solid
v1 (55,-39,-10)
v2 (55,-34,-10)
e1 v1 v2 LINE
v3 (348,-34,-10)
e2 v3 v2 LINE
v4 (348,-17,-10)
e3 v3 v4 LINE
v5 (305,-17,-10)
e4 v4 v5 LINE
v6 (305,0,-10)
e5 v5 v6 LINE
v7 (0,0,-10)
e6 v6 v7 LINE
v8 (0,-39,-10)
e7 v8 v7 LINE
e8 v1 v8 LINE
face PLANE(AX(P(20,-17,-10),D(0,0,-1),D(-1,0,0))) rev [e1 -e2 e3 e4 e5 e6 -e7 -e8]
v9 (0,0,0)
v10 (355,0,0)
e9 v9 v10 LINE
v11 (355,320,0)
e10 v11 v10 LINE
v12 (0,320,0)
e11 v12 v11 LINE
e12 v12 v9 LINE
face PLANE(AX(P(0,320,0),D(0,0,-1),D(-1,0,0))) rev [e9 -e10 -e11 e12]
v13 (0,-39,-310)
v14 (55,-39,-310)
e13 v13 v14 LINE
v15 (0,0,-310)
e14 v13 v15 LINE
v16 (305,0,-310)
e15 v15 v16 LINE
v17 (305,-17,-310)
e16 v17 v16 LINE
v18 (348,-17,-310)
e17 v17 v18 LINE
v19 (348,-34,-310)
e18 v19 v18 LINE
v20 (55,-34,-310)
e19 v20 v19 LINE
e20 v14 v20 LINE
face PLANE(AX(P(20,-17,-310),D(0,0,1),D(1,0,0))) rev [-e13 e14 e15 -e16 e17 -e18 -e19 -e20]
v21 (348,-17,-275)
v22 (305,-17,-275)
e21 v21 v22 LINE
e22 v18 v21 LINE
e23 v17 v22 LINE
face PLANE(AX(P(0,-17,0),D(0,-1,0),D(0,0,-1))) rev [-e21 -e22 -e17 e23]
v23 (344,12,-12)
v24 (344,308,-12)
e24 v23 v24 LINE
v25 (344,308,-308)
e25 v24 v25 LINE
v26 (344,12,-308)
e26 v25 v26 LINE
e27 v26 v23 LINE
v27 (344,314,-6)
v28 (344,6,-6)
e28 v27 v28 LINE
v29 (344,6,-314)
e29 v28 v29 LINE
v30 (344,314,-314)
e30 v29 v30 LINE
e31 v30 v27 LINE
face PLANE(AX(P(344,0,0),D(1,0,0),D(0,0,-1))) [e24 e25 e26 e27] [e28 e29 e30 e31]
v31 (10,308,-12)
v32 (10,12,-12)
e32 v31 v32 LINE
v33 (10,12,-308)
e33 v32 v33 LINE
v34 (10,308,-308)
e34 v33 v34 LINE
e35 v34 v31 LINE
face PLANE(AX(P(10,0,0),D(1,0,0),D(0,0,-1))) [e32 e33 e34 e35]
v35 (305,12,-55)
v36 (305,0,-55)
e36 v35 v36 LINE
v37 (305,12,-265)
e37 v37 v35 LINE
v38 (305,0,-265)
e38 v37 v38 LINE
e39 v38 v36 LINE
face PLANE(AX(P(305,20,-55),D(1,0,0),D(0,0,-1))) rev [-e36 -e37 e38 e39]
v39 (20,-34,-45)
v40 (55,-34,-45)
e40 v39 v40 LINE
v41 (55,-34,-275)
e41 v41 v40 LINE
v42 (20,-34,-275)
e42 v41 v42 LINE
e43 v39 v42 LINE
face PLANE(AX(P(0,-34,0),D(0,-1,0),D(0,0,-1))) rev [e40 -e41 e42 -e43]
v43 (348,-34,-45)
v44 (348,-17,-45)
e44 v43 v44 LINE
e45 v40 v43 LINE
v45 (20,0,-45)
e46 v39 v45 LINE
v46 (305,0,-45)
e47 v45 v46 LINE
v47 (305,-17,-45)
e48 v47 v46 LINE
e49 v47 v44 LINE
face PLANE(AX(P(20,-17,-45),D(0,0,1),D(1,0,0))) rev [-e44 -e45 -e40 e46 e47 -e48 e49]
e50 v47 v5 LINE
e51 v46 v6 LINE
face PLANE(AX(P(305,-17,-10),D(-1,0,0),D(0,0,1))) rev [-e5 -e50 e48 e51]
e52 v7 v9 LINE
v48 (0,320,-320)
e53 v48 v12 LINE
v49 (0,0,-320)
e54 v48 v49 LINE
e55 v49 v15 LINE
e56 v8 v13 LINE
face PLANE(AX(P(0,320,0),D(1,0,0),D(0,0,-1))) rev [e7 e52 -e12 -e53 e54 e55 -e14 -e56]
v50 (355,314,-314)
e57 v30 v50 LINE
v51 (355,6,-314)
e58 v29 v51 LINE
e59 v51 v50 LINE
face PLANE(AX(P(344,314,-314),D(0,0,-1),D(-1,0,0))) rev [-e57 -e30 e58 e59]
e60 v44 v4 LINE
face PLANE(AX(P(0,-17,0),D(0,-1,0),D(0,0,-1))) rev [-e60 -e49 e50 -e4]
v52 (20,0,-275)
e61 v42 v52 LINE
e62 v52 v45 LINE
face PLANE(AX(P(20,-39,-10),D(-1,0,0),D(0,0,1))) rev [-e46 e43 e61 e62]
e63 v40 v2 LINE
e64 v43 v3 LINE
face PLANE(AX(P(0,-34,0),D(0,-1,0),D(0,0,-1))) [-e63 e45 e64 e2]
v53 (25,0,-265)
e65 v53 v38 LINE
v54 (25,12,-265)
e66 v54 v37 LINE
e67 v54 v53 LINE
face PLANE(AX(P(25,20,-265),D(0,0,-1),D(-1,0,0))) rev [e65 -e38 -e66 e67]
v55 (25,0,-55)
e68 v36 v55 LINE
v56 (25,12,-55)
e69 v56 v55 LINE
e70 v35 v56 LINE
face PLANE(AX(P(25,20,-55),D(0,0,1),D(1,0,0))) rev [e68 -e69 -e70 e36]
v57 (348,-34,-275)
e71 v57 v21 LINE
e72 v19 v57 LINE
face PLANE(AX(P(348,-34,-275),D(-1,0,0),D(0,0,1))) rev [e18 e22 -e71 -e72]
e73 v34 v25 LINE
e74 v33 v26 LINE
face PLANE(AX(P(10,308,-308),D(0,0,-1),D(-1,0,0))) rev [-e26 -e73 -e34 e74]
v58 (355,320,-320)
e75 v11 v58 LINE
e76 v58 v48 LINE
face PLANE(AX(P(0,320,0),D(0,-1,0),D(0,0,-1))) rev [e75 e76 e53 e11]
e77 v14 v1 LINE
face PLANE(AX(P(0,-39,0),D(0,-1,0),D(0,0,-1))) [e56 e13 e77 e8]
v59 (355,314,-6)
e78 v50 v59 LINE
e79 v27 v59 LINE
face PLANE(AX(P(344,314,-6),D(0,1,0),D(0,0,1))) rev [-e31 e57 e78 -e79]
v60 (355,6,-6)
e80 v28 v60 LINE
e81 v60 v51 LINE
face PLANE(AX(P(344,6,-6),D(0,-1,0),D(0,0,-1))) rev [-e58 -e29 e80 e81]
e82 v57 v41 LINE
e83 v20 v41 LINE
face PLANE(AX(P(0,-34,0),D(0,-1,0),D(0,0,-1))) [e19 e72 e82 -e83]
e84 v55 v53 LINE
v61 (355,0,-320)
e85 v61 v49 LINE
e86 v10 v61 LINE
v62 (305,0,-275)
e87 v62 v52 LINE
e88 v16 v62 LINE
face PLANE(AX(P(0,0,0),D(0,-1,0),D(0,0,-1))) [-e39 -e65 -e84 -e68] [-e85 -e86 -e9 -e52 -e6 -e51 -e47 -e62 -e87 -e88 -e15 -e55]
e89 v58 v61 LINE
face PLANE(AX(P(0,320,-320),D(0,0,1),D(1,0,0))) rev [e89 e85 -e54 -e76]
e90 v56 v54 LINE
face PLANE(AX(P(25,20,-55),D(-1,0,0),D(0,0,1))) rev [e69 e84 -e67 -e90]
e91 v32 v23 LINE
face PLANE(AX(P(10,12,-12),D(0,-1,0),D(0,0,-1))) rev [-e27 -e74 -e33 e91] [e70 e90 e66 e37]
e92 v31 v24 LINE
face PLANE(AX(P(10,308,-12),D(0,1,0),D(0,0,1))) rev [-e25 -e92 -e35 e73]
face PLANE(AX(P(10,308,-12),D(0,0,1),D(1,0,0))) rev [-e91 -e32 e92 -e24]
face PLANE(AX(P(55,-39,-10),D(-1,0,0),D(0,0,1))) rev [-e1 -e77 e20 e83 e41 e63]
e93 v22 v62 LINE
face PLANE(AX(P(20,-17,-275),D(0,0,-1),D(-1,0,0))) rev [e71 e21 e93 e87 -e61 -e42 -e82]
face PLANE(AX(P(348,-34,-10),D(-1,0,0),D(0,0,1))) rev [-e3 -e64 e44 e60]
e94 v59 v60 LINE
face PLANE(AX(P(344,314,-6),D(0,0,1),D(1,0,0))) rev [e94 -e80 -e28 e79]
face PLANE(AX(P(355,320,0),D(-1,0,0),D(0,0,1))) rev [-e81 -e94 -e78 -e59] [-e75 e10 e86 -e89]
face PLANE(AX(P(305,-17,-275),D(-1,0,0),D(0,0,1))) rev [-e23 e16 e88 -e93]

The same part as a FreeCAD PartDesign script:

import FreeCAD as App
import Part
import Sketcher
from FreeCAD import Vector
Q = App.Units.Quantity


def add_polygon(sketch, points):
    """Adds a closed chain of lines whose ends are joined by coincident constraints."""
    first, n = sketch.GeometryCount, len(points)
    for a, b in zip(points, points[1:] + points[:1]):
        sketch.addGeometry(Part.LineSegment(App.Vector(*a, 0), App.Vector(*b, 0)), False)
    for i in range(n):
        sketch.addConstraint(Sketcher.Constraint("Coincident", first + i, 2, first + (i + 1) % n, 1))

doc = App.newDocument("Part")
body = doc.addObject("PartDesign::Body", "Body")

sketch1 = body.newObject("Sketcher::SketchObject", "Sketch")
sketch1.AttachmentSupport = (doc.getObject("XZ_Plane"), [""])
sketch1.MapMode = "FlatFace"
add_polygon(sketch1, [(0, -320), (0, 0), (355, 0), (355, -320)])
sketch1.addConstraint([
    Sketcher.Constraint("Vertical", 0),
    Sketcher.Constraint("Horizontal", 1),
    Sketcher.Constraint("Vertical", 2),
    Sketcher.Constraint("Horizontal", 3),
    Sketcher.Constraint("Coincident", 0, 2, -1, 1),
    Sketcher.Constraint("DistanceX", 1, 1, 1, 2, Q("355 mm")),
    Sketcher.Constraint("DistanceY", 0, 1, 0, 2, Q("320 mm")),
])
pad1 = body.newObject("PartDesign::Pad", "Pad")
pad1.Profile = sketch1
pad1.Length = 320
pad1.Reversed = True

sketch2 = body.newObject("Sketcher::SketchObject", "Sketch001")
sketch2.AttachmentSupport = (doc.getObject("YZ_Plane"), [""])
sketch2.MapMode = "FlatFace"
sketch2.AttachmentOffset = App.Placement(Vector(0, 0, 355), App.Rotation())
add_polygon(sketch2, [(308, -12), (12, -12), (12, -308), (308, -308)])
sketch2.addConstraint([
    Sketcher.Constraint("Horizontal", 0),
    Sketcher.Constraint("Vertical", 1),
    Sketcher.Constraint("Horizontal", 2),
    Sketcher.Constraint("Vertical", 3),
    Sketcher.Constraint("Equal", 2, 1),
    Sketcher.Constraint("DistanceX", 0, 2, 0, 1, Q("296 mm")),
    Sketcher.Constraint("DistanceX", -1, 1, 0, 2, Q("12 mm")),
    Sketcher.Constraint("DistanceY", 0, 2, -1, 1, Q("12 mm")),
])
pocket1 = body.newObject("PartDesign::Pocket", "Pocket")
pocket1.Profile = sketch2
pocket1.Length = 345

sketch3 = body.newObject("Sketcher::SketchObject", "Sketch002")
sketch3.AttachmentSupport = (doc.getObject("YZ_Plane"), [""])
sketch3.MapMode = "FlatFace"
sketch3.AttachmentOffset = App.Placement(Vector(0, 0, 355), App.Rotation())
add_polygon(sketch3, [(314, -6), (6, -6), (6, -314), (314, -314)])
sketch3.addConstraint([
    Sketcher.Constraint("Horizontal", 0),
    Sketcher.Constraint("Vertical", 1),
    Sketcher.Constraint("Horizontal", 2),
    Sketcher.Constraint("Vertical", 3),
    Sketcher.Constraint("Equal", 2, 1),
    Sketcher.Constraint("DistanceX", 0, 2, 0, 1, Q("308 mm")),
    Sketcher.Constraint("DistanceX", -1, 1, 0, 2, Q("6 mm")),
    Sketcher.Constraint("DistanceY", 0, 2, -1, 1, Q("6 mm")),
])
pocket2 = body.newObject("PartDesign::Pocket", "Pocket001")
pocket2.Profile = sketch3
pocket2.Length = 11

sketch4 = body.newObject("Sketcher::SketchObject", "Sketch003")
sketch4.AttachmentSupport = (doc.getObject("XZ_Plane"), [""])
sketch4.MapMode = "FlatFace"
add_polygon(sketch4, [(25, -55), (25, -265), (305, -265), (305, -55)])
sketch4.addConstraint([
    Sketcher.Constraint("Vertical", 0),
    Sketcher.Constraint("Horizontal", 1),
    Sketcher.Constraint("Vertical", 2),
    Sketcher.Constraint("Horizontal", 3),
    Sketcher.Constraint("DistanceX", 1, 1, 1, 2, Q("280 mm")),
    Sketcher.Constraint("DistanceY", 0, 2, 0, 1, Q("210 mm")),
    Sketcher.Constraint("DistanceX", -1, 1, 0, 2, Q("25 mm")),
    Sketcher.Constraint("DistanceY", 0, 2, -1, 1, Q("265 mm")),
])
pocket3 = body.newObject("PartDesign::Pocket", "Pocket002")
pocket3.Profile = sketch4
pocket3.Length = 20

sketch5 = body.newObject("Sketcher::SketchObject", "Sketch004")
sketch5.AttachmentSupport = (doc.getObject("XZ_Plane"), [""])
sketch5.MapMode = "FlatFace"
add_polygon(sketch5, [(20, -10), (20, -45), (305, -45), (305, -10)])
sketch5.addConstraint([
    Sketcher.Constraint("Vertical", 0),
    Sketcher.Constraint("Horizontal", 1),
    Sketcher.Constraint("Vertical", 2),
    Sketcher.Constraint("Horizontal", 3),
    Sketcher.Constraint("DistanceX", 1, 1, 1, 2, Q("285 mm")),
    Sketcher.Constraint("DistanceY", 0, 2, 0, 1, Q("35 mm")),
    Sketcher.Constraint("DistanceX", -1, 1, 0, 2, Q("20 mm")),
    Sketcher.Constraint("DistanceY", 0, 2, -1, 1, Q("45 mm")),
])
pad2 = body.newObject("PartDesign::Pad", "Pad001")
pad2.Profile = sketch5
pad2.Length = 17

sketch6 = body.newObject("Sketcher::SketchObject", "Sketch005")
sketch6.AttachmentSupport = (doc.getObject("XZ_Plane"), [""])
sketch6.MapMode = "FlatFace"
add_polygon(sketch6, [(20, -275), (20, -310), (305, -310), (305, -275)])
sketch6.addConstraint([
    Sketcher.Constraint("Vertical", 0),
    Sketcher.Constraint("Horizontal", 1),
    Sketcher.Constraint("Vertical", 2),
    Sketcher.Constraint("Horizontal", 3),
    Sketcher.Constraint("DistanceX", 1, 1, 1, 2, Q("285 mm")),
    Sketcher.Constraint("DistanceY", 0, 2, 0, 1, Q("35 mm")),
    Sketcher.Constraint("DistanceX", -1, 1, 0, 2, Q("20 mm")),
    Sketcher.Constraint("DistanceY", 0, 2, -1, 1, Q("310 mm")),
])
pad3 = body.newObject("PartDesign::Pad", "Pad002")
pad3.Profile = sketch6
pad3.Length = 17

sketch7 = body.newObject("Sketcher::SketchObject", "Sketch006")
sketch7.AttachmentSupport = (doc.getObject("XZ_Plane"), [""])
sketch7.MapMode = "FlatFace"
sketch7.AttachmentOffset = App.Placement(Vector(0, 0, 17), App.Rotation())
add_polygon(sketch7, [(20, -10), (20, -45), (348, -45), (348, -10)])
add_polygon(sketch7, [(20, -275), (20, -310), (348, -310), (348, -275)])
sketch7.addConstraint([
    Sketcher.Constraint("Vertical", 0),
    Sketcher.Constraint("Horizontal", 1),
    Sketcher.Constraint("Vertical", 2),
    Sketcher.Constraint("Horizontal", 3),
    Sketcher.Constraint("Vertical", 4),
    Sketcher.Constraint("Horizontal", 5),
    Sketcher.Constraint("Vertical", 6),
    Sketcher.Constraint("Horizontal", 7),
    Sketcher.Constraint("Vertical", 3, 2, 4, 2),
    Sketcher.Constraint("Vertical", 2, 2, 5, 2),
    Sketcher.Constraint("Equal", 2, 4),
    Sketcher.Constraint("DistanceX", 1, 1, 1, 2, Q("328 mm")),
    Sketcher.Constraint("DistanceY", 0, 2, 0, 1, Q("35 mm")),
    Sketcher.Constraint("DistanceX", -1, 1, 0, 2, Q("20 mm")),
    Sketcher.Constraint("DistanceY", 0, 2, -1, 1, Q("45 mm")),
    Sketcher.Constraint("DistanceY", 4, 2, -1, 1, Q("310 mm")),
])
pad4 = body.newObject("PartDesign::Pad", "Pad003")
pad4.Profile = sketch7
pad4.Length = 17

sketch8 = body.newObject("Sketcher::SketchObject", "Sketch007")
sketch8.AttachmentSupport = (doc.getObject("XZ_Plane"), [""])
sketch8.MapMode = "FlatFace"
sketch8.AttachmentOffset = App.Placement(Vector(0, 0, 34), App.Rotation())
add_polygon(sketch8, [(20, -10), (20, -310), (55, -310), (55, -10)])
sketch8.addConstraint([
    Sketcher.Constraint("Vertical", 0),
    Sketcher.Constraint("Horizontal", 1),
    Sketcher.Constraint("Vertical", 2),
    Sketcher.Constraint("Horizontal", 3),
    Sketcher.Constraint("DistanceX", 1, 1, 1, 2, Q("35 mm")),
    Sketcher.Constraint("DistanceY", 0, 2, 0, 1, Q("300 mm")),
    Sketcher.Constraint("DistanceX", -1, 1, 0, 2, Q("20 mm")),
    Sketcher.Constraint("DistanceY", 0, 2, -1, 1, Q("310 mm")),
])
pad5 = body.newObject("PartDesign::Pad", "Pad004")
pad5.Profile = sketch8
pad5.Length = 5

sketch9 = body.newObject("Sketcher::SketchObject", "Sketch008")
sketch9.AttachmentSupport = (doc.getObject("XZ_Plane"), [""])
sketch9.MapMode = "FlatFace"
add_polygon(sketch9, [(0, -10), (0, -310), (20, -310), (20, -10)])
sketch9.addConstraint([
    Sketcher.Constraint("Vertical", 0),
    Sketcher.Constraint("Horizontal", 1),
    Sketcher.Constraint("Vertical", 2),
    Sketcher.Constraint("Horizontal", 3),
    Sketcher.Constraint("PointOnObject", 0, 2, -2),
    Sketcher.Constraint("DistanceX", 1, 1, 1, 2, Q("20 mm")),
    Sketcher.Constraint("DistanceY", 0, 2, 0, 1, Q("300 mm")),
    Sketcher.Constraint("DistanceY", 0, 2, -1, 1, Q("310 mm")),
])
pad6 = body.newObject("PartDesign::Pad", "Pad005")
pad6.Profile = sketch9
pad6.Length = 39

doc.recompute()
